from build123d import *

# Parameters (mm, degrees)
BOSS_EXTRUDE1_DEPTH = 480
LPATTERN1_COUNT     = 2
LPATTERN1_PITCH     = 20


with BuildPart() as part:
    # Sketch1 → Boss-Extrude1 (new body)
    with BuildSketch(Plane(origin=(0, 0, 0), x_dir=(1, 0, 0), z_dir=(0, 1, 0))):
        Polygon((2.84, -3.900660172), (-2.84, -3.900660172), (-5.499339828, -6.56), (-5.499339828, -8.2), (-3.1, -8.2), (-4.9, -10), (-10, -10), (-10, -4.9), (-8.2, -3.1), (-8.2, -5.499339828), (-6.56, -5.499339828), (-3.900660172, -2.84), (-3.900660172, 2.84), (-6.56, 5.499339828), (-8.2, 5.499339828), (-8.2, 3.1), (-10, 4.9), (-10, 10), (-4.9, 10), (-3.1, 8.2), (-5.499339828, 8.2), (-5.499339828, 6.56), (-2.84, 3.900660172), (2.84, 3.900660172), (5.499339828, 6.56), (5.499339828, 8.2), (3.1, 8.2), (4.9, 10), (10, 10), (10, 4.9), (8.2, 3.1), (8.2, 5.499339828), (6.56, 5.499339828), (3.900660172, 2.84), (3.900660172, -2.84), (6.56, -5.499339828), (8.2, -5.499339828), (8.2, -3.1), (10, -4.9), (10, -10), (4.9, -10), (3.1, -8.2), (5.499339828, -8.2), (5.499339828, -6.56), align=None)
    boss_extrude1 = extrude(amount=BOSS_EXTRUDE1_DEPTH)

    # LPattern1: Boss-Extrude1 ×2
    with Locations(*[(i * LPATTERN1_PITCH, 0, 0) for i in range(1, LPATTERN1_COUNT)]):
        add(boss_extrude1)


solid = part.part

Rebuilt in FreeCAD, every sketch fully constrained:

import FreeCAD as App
import Part
import Sketcher


def add_polygon(sketch, points):
    """Adds a closed chain of lines whose ends are joined by coincident constraints."""
    first, n = sketch.GeometryCount, len(points)
    for a, b in zip(points, points[1:] + points[:1]):
        sketch.addGeometry(Part.LineSegment(App.Vector(*a, 0), App.Vector(*b, 0)), False)
    for i in range(n):
        sketch.addConstraint(Sketcher.Constraint("Coincident", first + i, 2, first + (i + 1) % n, 1))

doc = App.newDocument("Part")
params = doc.addObject("Spreadsheet::Sheet", "Params")
for row, (alias, value) in enumerate([
    ("sketch1_width", "5.1 mm"),
    ("sketch1_width2", "5.68 mm"),
    ("sketch1_width3", "1.64 mm"),
    ("pad1_length", "480 mm"),
    ("linearpattern_pitch", "20 mm"),
], start=1):
    params.set(f"A{row}", alias)
    params.set(f"B{row}", "=" + value)
    params.setAlias(f"B{row}", alias)

body = doc.addObject("PartDesign::Body", "Body")

# Sketch on XZ plane
sketch1 = body.newObject("Sketcher::SketchObject", "Sketch")
sketch1.AttachmentSupport = (doc.getObject("XZ_Plane"), [""])
sketch1.MapMode = "FlatFace"
add_polygon(sketch1, [(-2.8, 3.9), (2.8, 3.9), (5.5, 6.6), (5.5, 8.2), (3.1, 8.2), (4.9, 10), (10, 10), (10, 4.9), (8.2, 3.1), (8.2, 5.5), (6.6, 5.5), (3.9, 2.8), (3.9, -2.8), (6.6, -5.5), (8.2, -5.5), (8.2, -3.1), (10, -4.9), (10, -10), (4.9, -10), (3.1, -8.2), (5.5, -8.2), (5.5, -6.6), (2.8, -3.9), (-2.8, -3.9), (-5.5, -6.6), (-5.5, -8.2), (-3.1, -8.2), (-4.9, -10), (-10, -10), (-10, -4.9), (-8.2, -3.1), (-8.2, -5.5), (-6.6, -5.5), (-3.9, -2.8), (-3.9, 2.8), (-6.6, 5.5), (-8.2, 5.5), (-8.2, 3.1), (-10, 4.9), (-10, 10), (-4.9, 10), (-3.1, 8.2), (-5.5, 8.2), (-5.5, 6.6)])  # lines 0-43
sketch1.addConstraint([
    Sketcher.Constraint("Horizontal", 0),
    Sketcher.Constraint("Vertical", 2),
    Sketcher.Constraint("Horizontal", 3),
    Sketcher.Constraint("Horizontal", 5),
    Sketcher.Constraint("Vertical", 6),
    Sketcher.Constraint("Vertical", 8),
    Sketcher.Constraint("Horizontal", 9),
    Sketcher.Constraint("Vertical", 11),
    Sketcher.Constraint("Horizontal", 13),
    Sketcher.Constraint("Vertical", 14),
    Sketcher.Constraint("Vertical", 16),
    Sketcher.Constraint("Horizontal", 17),
    Sketcher.Constraint("Horizontal", 19),
    Sketcher.Constraint("Vertical", 20),
    Sketcher.Constraint("Horizontal", 22),
    Sketcher.Constraint("Vertical", 24),
    Sketcher.Constraint("Horizontal", 25),
    Sketcher.Constraint("Horizontal", 27),
    Sketcher.Constraint("Vertical", 28),
    Sketcher.Constraint("Vertical", 30),
    Sketcher.Constraint("Horizontal", 31),
    Sketcher.Constraint("Vertical", 33),
    Sketcher.Constraint("Horizontal", 35),
    Sketcher.Constraint("Vertical", 36),
    Sketcher.Constraint("Vertical", 38),
    Sketcher.Constraint("Horizontal", 39),
    Sketcher.Constraint("Horizontal", 41),
    Sketcher.Constraint("Vertical", 42),
    Sketcher.Constraint("Symmetric", 0, 2, 22, 2, -1, 1),
    Sketcher.Constraint("Symmetric", 1, 2, 23, 2, -1, 1),
    Sketcher.Constraint("Symmetric", 3, 2, 25, 2, -1, 1),
    Sketcher.Constraint("Symmetric", 4, 2, 26, 2, -1, 1),
    Sketcher.Constraint("Symmetric", 6, 2, 28, 2, -1, 1),
    Sketcher.Constraint("Symmetric", 7, 2, 29, 2, -1, 1),
    Sketcher.Constraint("Symmetric", 9, 2, 31, 2, -1, 1),
    Sketcher.Constraint("Symmetric", 10, 2, 32, 2, -1, 1),
    Sketcher.Constraint("Symmetric", 12, 2, 34, 2, -1, 1),
    Sketcher.Constraint("Symmetric", 14, 2, 36, 2, -1, 1),
    Sketcher.Constraint("Symmetric", 15, 2, 37, 2, -1, 1),
    Sketcher.Constraint("Symmetric", 17, 2, 39, 2, -1, 1),
    Sketcher.Constraint("Symmetric", 18, 2, 40, 2, -1, 1),
    Sketcher.Constraint("Symmetric", 20, 2, 42, 2, -1, 1),
    Sketcher.Constraint("Symmetric", 20, 2, 23, 2, -2),
    Sketcher.Constraint("Symmetric", 18, 2, 25, 2, -2),
    Sketcher.Constraint("Symmetric", 17, 2, 26, 2, -2),
    Sketcher.Constraint("Symmetric", 15, 2, 28, 2, -2),
    Sketcher.Constraint("Symmetric", 14, 2, 29, 2, -2),
    Sketcher.Constraint("Symmetric", 12, 2, 31, 2, -2),
    Sketcher.Constraint("Parallel", 1, 4),
    Sketcher.Constraint("Parallel", 4, 7),
    Sketcher.Constraint("Parallel", 7, 10),
    Sketcher.Constraint("Perpendicular", 10, 12),
    Sketcher.Constraint("Parallel", 12, 15),
    Sketcher.Constraint("Parallel", 18, 21),
    Sketcher.Constraint("Perpendicular", 32, 34),
    Sketcher.Constraint("Parallel", 40, 43),
    Sketcher.Constraint("Equal", 35, 2),
    Sketcher.Constraint("Equal", 39, 6),
    Sketcher.Constraint("Equal", 41, 8),
    Sketcher.Constraint("Equal", 22, 11),
    Sketcher.Constraint("Equal", 4, 7),
    Sketcher.Constraint("Equal", 1, 10),
    Sketcher.Constraint("DistanceX", 5, 1, 5, 2, 5.1),
    Sketcher.Constraint("DistanceY", -1, 1, 4, 2, 10.0),
    Sketcher.Constraint("DistanceY", 15, 2, 7, 2, 8.0),
    Sketcher.Constraint("DistanceX", 0, 1, 0, 2, 5.68),
    Sketcher.Constraint("DistanceX", 9, 2, 9, 1, 1.64),
    Sketcher.Constraint("DistanceX", 3, 2, 3, 1, 2.39934),
])
sketch1.setExpression("Constraints[106]", "Params.sketch1_width")
sketch1.setExpression("Constraints[109]", "Params.sketch1_width2")
sketch1.setExpression("Constraints[110]", "Params.sketch1_width3")
pad1 = body.newObject("PartDesign::Pad", "Pad")
pad1.Profile = sketch1
pad1.setExpression("Length", "Params.pad1_length")
pad1.Reversed = True
doc.recompute()

linearpattern = body.newObject("PartDesign::LinearPattern", "LinearPattern")
linearpattern.Originals = [pad1]
linearpattern.Direction = (doc.getObject("X_Axis"), [""])
linearpattern.Mode = "offset"
linearpattern.setExpression("Offset", "Params.linearpattern_pitch")
linearpattern.Occurrences = 2
body.Tip = linearpattern

doc.recompute()
